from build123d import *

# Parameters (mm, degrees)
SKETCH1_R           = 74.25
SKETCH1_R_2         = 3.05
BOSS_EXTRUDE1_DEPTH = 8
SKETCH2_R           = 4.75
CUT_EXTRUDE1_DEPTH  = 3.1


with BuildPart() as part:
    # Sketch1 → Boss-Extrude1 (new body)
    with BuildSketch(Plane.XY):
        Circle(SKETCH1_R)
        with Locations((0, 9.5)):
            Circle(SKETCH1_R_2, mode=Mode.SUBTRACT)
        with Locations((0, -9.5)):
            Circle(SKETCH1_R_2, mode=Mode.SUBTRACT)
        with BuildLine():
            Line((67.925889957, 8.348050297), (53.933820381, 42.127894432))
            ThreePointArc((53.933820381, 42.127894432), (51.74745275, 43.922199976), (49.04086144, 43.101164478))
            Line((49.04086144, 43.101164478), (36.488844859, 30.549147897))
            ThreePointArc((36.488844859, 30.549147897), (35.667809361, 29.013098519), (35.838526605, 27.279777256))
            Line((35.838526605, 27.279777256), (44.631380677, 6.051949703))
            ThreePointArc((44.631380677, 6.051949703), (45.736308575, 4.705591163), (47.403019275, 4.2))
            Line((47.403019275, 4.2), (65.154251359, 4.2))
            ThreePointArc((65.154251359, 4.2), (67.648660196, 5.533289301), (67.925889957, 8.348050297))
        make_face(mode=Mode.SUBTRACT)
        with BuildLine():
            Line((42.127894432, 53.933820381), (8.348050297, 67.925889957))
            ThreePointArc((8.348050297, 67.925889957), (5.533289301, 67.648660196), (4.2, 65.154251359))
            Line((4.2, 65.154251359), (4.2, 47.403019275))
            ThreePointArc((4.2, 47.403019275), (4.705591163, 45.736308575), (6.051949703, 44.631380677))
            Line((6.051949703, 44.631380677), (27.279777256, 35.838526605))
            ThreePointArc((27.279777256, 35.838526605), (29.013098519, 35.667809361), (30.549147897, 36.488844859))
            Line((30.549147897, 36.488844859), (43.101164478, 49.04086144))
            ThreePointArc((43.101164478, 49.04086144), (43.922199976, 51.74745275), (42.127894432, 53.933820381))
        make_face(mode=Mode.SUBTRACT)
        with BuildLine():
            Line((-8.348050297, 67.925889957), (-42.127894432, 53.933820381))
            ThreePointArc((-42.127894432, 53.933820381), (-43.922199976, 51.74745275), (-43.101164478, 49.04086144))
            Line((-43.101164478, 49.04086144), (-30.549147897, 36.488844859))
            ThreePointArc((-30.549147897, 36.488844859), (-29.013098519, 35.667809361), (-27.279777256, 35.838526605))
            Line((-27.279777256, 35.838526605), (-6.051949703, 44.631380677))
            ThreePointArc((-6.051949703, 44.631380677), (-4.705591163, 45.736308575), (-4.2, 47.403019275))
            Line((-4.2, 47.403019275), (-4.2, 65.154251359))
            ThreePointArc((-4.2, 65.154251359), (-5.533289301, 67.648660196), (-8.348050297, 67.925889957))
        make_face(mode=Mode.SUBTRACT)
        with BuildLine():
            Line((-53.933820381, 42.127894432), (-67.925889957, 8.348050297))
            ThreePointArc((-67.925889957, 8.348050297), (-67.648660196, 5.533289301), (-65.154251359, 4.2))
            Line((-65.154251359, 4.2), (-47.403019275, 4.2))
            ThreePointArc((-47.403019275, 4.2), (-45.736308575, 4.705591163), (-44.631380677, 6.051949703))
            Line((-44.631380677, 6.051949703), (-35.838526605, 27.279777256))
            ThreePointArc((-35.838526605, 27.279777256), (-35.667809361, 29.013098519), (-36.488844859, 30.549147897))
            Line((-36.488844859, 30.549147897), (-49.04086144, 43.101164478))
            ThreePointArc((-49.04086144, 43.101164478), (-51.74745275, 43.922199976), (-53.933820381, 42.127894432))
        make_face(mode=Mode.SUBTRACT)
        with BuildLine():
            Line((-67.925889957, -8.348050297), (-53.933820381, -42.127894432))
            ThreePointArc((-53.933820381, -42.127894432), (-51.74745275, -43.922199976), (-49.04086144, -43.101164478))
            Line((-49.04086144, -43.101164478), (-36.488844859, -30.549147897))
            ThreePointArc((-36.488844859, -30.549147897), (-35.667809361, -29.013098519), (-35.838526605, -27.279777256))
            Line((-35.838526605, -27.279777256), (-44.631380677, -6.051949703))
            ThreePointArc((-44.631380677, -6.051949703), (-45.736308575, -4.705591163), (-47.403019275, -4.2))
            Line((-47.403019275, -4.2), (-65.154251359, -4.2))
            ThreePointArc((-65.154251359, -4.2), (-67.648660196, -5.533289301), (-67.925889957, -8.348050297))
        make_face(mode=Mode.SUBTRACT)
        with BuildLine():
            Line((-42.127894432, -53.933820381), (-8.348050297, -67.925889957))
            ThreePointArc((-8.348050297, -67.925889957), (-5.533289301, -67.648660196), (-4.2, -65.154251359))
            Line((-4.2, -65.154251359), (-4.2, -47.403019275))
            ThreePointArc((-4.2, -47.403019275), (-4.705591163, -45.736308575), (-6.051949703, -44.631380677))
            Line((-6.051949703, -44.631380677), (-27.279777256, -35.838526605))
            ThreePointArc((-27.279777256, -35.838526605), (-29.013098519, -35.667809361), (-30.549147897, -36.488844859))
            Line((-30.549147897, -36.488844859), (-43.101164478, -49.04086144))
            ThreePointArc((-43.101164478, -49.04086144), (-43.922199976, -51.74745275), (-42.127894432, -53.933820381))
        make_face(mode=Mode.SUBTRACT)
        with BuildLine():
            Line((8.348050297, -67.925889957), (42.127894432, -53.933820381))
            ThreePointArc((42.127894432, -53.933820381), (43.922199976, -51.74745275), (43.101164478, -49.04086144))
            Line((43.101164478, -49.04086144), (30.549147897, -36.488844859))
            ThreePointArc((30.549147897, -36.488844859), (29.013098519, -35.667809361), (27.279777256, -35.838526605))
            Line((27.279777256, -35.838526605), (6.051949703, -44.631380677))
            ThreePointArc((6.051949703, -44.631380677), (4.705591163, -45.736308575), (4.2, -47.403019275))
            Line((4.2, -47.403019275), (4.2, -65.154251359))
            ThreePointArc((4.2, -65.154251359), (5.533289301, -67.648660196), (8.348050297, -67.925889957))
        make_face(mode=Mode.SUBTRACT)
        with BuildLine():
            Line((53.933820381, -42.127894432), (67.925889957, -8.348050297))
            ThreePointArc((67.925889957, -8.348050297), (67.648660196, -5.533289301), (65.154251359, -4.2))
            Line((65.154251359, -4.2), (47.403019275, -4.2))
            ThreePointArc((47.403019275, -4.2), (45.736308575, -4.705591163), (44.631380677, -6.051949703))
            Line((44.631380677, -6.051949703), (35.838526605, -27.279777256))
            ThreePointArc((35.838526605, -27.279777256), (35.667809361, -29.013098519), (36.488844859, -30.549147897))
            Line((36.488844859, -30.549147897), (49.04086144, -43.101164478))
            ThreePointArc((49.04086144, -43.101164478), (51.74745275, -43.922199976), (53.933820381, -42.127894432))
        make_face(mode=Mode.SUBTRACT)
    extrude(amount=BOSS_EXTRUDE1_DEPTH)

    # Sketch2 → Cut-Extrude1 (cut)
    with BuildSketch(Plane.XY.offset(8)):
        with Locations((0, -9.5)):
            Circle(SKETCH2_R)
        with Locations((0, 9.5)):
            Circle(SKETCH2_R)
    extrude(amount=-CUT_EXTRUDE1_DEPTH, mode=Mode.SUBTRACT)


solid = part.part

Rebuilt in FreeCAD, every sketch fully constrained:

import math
import FreeCAD as App
import Part
import Sketcher
Q = App.Units.Quantity

doc = App.newDocument("Part")
body = doc.addObject("PartDesign::Body", "Body")

sketch1 = body.newObject("Sketcher::SketchObject", "Sketch")
sketch1.AttachmentSupport = (doc.getObject("XY_Plane"), [""])
sketch1.MapMode = "FlatFace"
sketch1.addGeometry([
    Part.Circle(App.Vector(0, 0, 0), App.Vector(0, 0, 1), 74.25),
    Part.LineSegment(App.Vector(-8.34805, -67.92589, 0), App.Vector(-42.127894, -53.93382, 0)),
    Part.ArcOfCircle(Part.Circle(App.Vector(-40.979844, -51.162182, 0), App.Vector(0, 0, 1), 3), math.radians(135), math.radians(247.5)),
    Part.LineSegment(App.Vector(-43.101164, -49.040861, 0), App.Vector(-30.549148, -36.488845, 0)),
    Part.ArcOfCircle(Part.Circle(App.Vector(-28.427828, -38.610165, 0), App.Vector(0, 0, 1), 3), math.radians(67.5), math.radians(135)),
    Part.LineSegment(App.Vector(-27.279777, -35.838527, 0), App.Vector(-6.05195, -44.631381, 0)),
    Part.ArcOfCircle(Part.Circle(App.Vector(-7.2, -47.403019, 0), App.Vector(0, 0, 1), 3), math.radians(0), math.radians(67.5)),
    Part.LineSegment(App.Vector(-4.2, -47.403019, 0), App.Vector(-4.2, -65.154251, 0)),
    Part.ArcOfCircle(Part.Circle(App.Vector(-7.2, -65.154251, 0), App.Vector(0, 0, 1), 3), math.radians(-112.5), math.radians(0)),
    Part.LineSegment(App.Vector(-53.93382, -42.127894, 0), App.Vector(-67.92589, -8.34805, 0)),
    Part.ArcOfCircle(Part.Circle(App.Vector(-65.154251, -7.2, 0), App.Vector(0, 0, 1), 3), math.radians(90), math.radians(202.5)),
    Part.LineSegment(App.Vector(-65.154251, -4.2, 0), App.Vector(-47.403019, -4.2, 0)),
    Part.ArcOfCircle(Part.Circle(App.Vector(-47.403019, -7.2, 0), App.Vector(0, 0, 1), 3), math.radians(22.5), math.radians(90)),
    Part.LineSegment(App.Vector(-44.631381, -6.05195, 0), App.Vector(-35.838527, -27.279777, 0)),
    Part.ArcOfCircle(Part.Circle(App.Vector(-38.610165, -28.427828, 0), App.Vector(0, 0, 1), 3), math.radians(-45), math.radians(22.5)),
    Part.LineSegment(App.Vector(-36.488845, -30.549148, 0), App.Vector(-49.040861, -43.101164, 0)),
    Part.ArcOfCircle(Part.Circle(App.Vector(-51.162182, -40.979844, 0), App.Vector(0, 0, 1), 3), math.radians(-157.5), math.radians(-45)),
    Part.LineSegment(App.Vector(42.127894, -53.93382, 0), App.Vector(8.34805, -67.92589, 0)),
    Part.ArcOfCircle(Part.Circle(App.Vector(7.2, -65.154251, 0), App.Vector(0, 0, 1), 3), math.radians(180), math.radians(292.5)),
    Part.LineSegment(App.Vector(4.2, -65.154251, 0), App.Vector(4.2, -47.403019, 0)),
    Part.ArcOfCircle(Part.Circle(App.Vector(7.2, -47.403019, 0), App.Vector(0, 0, 1), 3), math.radians(112.5), math.radians(180)),
    Part.LineSegment(App.Vector(6.05195, -44.631381, 0), App.Vector(27.279777, -35.838527, 0)),
    Part.ArcOfCircle(Part.Circle(App.Vector(28.427828, -38.610165, 0), App.Vector(0, 0, 1), 3), math.radians(45), math.radians(112.5)),
    Part.LineSegment(App.Vector(30.549148, -36.488845, 0), App.Vector(43.101164, -49.040861, 0)),
    Part.ArcOfCircle(Part.Circle(App.Vector(40.979844, -51.162182, 0), App.Vector(0, 0, 1), 3), math.radians(-67.5), math.radians(45)),
    Part.Circle(App.Vector(0, -9.5, 0), App.Vector(0, 0, 1), 3.05),
    Part.LineSegment(App.Vector(67.92589, -8.34805, 0), App.Vector(53.93382, -42.127894, 0)),
    Part.ArcOfCircle(Part.Circle(App.Vector(51.162182, -40.979844, 0), App.Vector(0, 0, 1), 3), math.radians(-135), math.radians(-22.5)),
    Part.LineSegment(App.Vector(49.040861, -43.101164, 0), App.Vector(36.488845, -30.549148, 0)),
    Part.ArcOfCircle(Part.Circle(App.Vector(38.610165, -28.427828, 0), App.Vector(0, 0, 1), 3), math.radians(157.5), math.radians(225)),
    Part.LineSegment(App.Vector(35.838527, -27.279777, 0), App.Vector(44.631381, -6.05195, 0)),
    Part.ArcOfCircle(Part.Circle(App.Vector(47.403019, -7.2, 0), App.Vector(0, 0, 1), 3), math.radians(90), math.radians(157.5)),
    Part.LineSegment(App.Vector(47.403019, -4.2, 0), App.Vector(65.154251, -4.2, 0)),
    Part.ArcOfCircle(Part.Circle(App.Vector(65.154251, -7.2, 0), App.Vector(0, 0, 1), 3), math.radians(-22.5), math.radians(90)),
    Part.LineSegment(App.Vector(-67.92589, 8.34805, 0), App.Vector(-53.93382, 42.127894, 0)),
    Part.ArcOfCircle(Part.Circle(App.Vector(-51.162182, 40.979844, 0), App.Vector(0, 0, 1), 3), math.radians(45), math.radians(157.5)),
    Part.LineSegment(App.Vector(-49.040861, 43.101164, 0), App.Vector(-36.488845, 30.549148, 0)),
    Part.ArcOfCircle(Part.Circle(App.Vector(-38.610165, 28.427828, 0), App.Vector(0, 0, 1), 3), math.radians(-22.5), math.radians(45)),
    Part.LineSegment(App.Vector(-35.838527, 27.279777, 0), App.Vector(-44.631381, 6.05195, 0)),
    Part.ArcOfCircle(Part.Circle(App.Vector(-47.403019, 7.2, 0), App.Vector(0, 0, 1), 3), math.radians(-90), math.radians(-22.5)),
    Part.LineSegment(App.Vector(-47.403019, 4.2, 0), App.Vector(-65.154251, 4.2, 0)),
    Part.ArcOfCircle(Part.Circle(App.Vector(-65.154251, 7.2, 0), App.Vector(0, 0, 1), 3), math.radians(157.5), math.radians(270)),
    Part.LineSegment(App.Vector(-42.127894, 53.93382, 0), App.Vector(-8.34805, 67.92589, 0)),
    Part.ArcOfCircle(Part.Circle(App.Vector(-7.2, 65.154251, 0), App.Vector(0, 0, 1), 3), math.radians(0), math.radians(112.5)),
    Part.LineSegment(App.Vector(-4.2, 65.154251, 0), App.Vector(-4.2, 47.403019, 0)),
    Part.ArcOfCircle(Part.Circle(App.Vector(-7.2, 47.403019, 0), App.Vector(0, 0, 1), 3), math.radians(-67.5), math.radians(0)),
    Part.LineSegment(App.Vector(-6.05195, 44.631381, 0), App.Vector(-27.279777, 35.838527, 0)),
    Part.ArcOfCircle(Part.Circle(App.Vector(-28.427828, 38.610165, 0), App.Vector(0, 0, 1), 3), math.radians(-135), math.radians(-67.5)),
    Part.LineSegment(App.Vector(-30.549148, 36.488845, 0), App.Vector(-43.101164, 49.040861, 0)),
    Part.ArcOfCircle(Part.Circle(App.Vector(-40.979844, 51.162182, 0), App.Vector(0, 0, 1), 3), math.radians(112.5), math.radians(225)),
    Part.Circle(App.Vector(0, 9.5, 0), App.Vector(0, 0, 1), 3.05),
    Part.LineSegment(App.Vector(53.93382, 42.127894, 0), App.Vector(67.92589, 8.34805, 0)),
    Part.ArcOfCircle(Part.Circle(App.Vector(65.154251, 7.2, 0), App.Vector(0, 0, 1), 3), math.radians(-90), math.radians(22.5)),
    Part.LineSegment(App.Vector(65.154251, 4.2, 0), App.Vector(47.403019, 4.2, 0)),
    Part.ArcOfCircle(Part.Circle(App.Vector(47.403019, 7.2, 0), App.Vector(0, 0, 1), 3), math.radians(-157.5), math.radians(-90)),
    Part.LineSegment(App.Vector(44.631381, 6.05195, 0), App.Vector(35.838527, 27.279777, 0)),
    Part.ArcOfCircle(Part.Circle(App.Vector(38.610165, 28.427828, 0), App.Vector(0, 0, 1), 3), math.radians(135), math.radians(202.5)),
    Part.LineSegment(App.Vector(36.488845, 30.549148, 0), App.Vector(49.040861, 43.101164, 0)),
    Part.ArcOfCircle(Part.Circle(App.Vector(51.162182, 40.979844, 0), App.Vector(0, 0, 1), 3), math.radians(22.5), math.radians(135)),
    Part.LineSegment(App.Vector(8.34805, 67.92589, 0), App.Vector(42.127894, 53.93382, 0)),
    Part.ArcOfCircle(Part.Circle(App.Vector(40.979844, 51.162182, 0), App.Vector(0, 0, 1), 3), math.radians(-45), math.radians(67.5)),
    Part.LineSegment(App.Vector(43.101164, 49.040861, 0), App.Vector(30.549148, 36.488845, 0)),
    Part.ArcOfCircle(Part.Circle(App.Vector(28.427828, 38.610165, 0), App.Vector(0, 0, 1), 3), math.radians(-112.5), math.radians(-45)),
    Part.LineSegment(App.Vector(27.279777, 35.838527, 0), App.Vector(6.05195, 44.631381, 0)),
    Part.ArcOfCircle(Part.Circle(App.Vector(7.2, 47.403019, 0), App.Vector(0, 0, 1), 3), math.radians(180), math.radians(247.5)),
    Part.LineSegment(App.Vector(4.2, 47.403019, 0), App.Vector(4.2, 65.154251, 0)),
    Part.ArcOfCircle(Part.Circle(App.Vector(7.2, 65.154251, 0), App.Vector(0, 0, 1), 3), math.radians(67.5), math.radians(180)),
], False)
sketch1.addConstraint([
    Sketcher.Constraint("Tangent", 1, 2, 2, 2),
    Sketcher.Constraint("Tangent", 2, 1, 3, 1),
    Sketcher.Constraint("Tangent", 3, 2, 4, 2),
    Sketcher.Constraint("Tangent", 4, 1, 5, 1),
    Sketcher.Constraint("Tangent", 5, 2, 6, 2),
    Sketcher.Constraint("Tangent", 6, 1, 7, 1),
    Sketcher.Constraint("Tangent", 7, 2, 8, 2),
    Sketcher.Constraint("Tangent", 8, 1, 1, 1),
    Sketcher.Constraint("Tangent", 9, 2, 10, 2),
    Sketcher.Constraint("Tangent", 10, 1, 11, 1),
    Sketcher.Constraint("Tangent", 11, 2, 12, 2),
    Sketcher.Constraint("Tangent", 12, 1, 13, 1),
    Sketcher.Constraint("Tangent", 13, 2, 14, 2),
    Sketcher.Constraint("Tangent", 14, 1, 15, 1),
    Sketcher.Constraint("Tangent", 15, 2, 16, 2),
    Sketcher.Constraint("Tangent", 16, 1, 9, 1),
    Sketcher.Constraint("Tangent", 17, 2, 18, 2),
    Sketcher.Constraint("Tangent", 18, 1, 19, 1),
    Sketcher.Constraint("Tangent", 19, 2, 20, 2),
    Sketcher.Constraint("Tangent", 20, 1, 21, 1),
    Sketcher.Constraint("Tangent", 21, 2, 22, 2),
    Sketcher.Constraint("Tangent", 22, 1, 23, 1),
    Sketcher.Constraint("Tangent", 23, 2, 24, 2),
    Sketcher.Constraint("Tangent", 24, 1, 17, 1),
    Sketcher.Constraint("Tangent", 26, 2, 27, 2),
    Sketcher.Constraint("Tangent", 27, 1, 28, 1),
    Sketcher.Constraint("Tangent", 28, 2, 29, 2),
    Sketcher.Constraint("Tangent", 29, 1, 30, 1),
    Sketcher.Constraint("Tangent", 30, 2, 31, 2),
    Sketcher.Constraint("Tangent", 31, 1, 32, 1),
    Sketcher.Constraint("Tangent", 32, 2, 33, 2),
    Sketcher.Constraint("Tangent", 33, 1, 26, 1),
    Sketcher.Constraint("Tangent", 34, 2, 35, 2),
    Sketcher.Constraint("Tangent", 35, 1, 36, 1),
    Sketcher.Constraint("Tangent", 36, 2, 37, 2),
    Sketcher.Constraint("Tangent", 37, 1, 38, 1),
    Sketcher.Constraint("Tangent", 38, 2, 39, 2),
    Sketcher.Constraint("Tangent", 39, 1, 40, 1),
    Sketcher.Constraint("Tangent", 40, 2, 41, 2),
    Sketcher.Constraint("Tangent", 41, 1, 34, 1),
    Sketcher.Constraint("Tangent", 42, 2, 43, 2),
    Sketcher.Constraint("Tangent", 43, 1, 44, 1),
    Sketcher.Constraint("Tangent", 44, 2, 45, 2),
    Sketcher.Constraint("Tangent", 45, 1, 46, 1),
    Sketcher.Constraint("Tangent", 46, 2, 47, 2),
    Sketcher.Constraint("Tangent", 47, 1, 48, 1),
    Sketcher.Constraint("Tangent", 48, 2, 49, 2),
    Sketcher.Constraint("Tangent", 49, 1, 42, 1),
    Sketcher.Constraint("Tangent", 51, 2, 52, 2),
    Sketcher.Constraint("Tangent", 52, 1, 53, 1),
    Sketcher.Constraint("Tangent", 53, 2, 54, 2),
    Sketcher.Constraint("Tangent", 54, 1, 55, 1),
    Sketcher.Constraint("Tangent", 55, 2, 56, 2),
    Sketcher.Constraint("Tangent", 56, 1, 57, 1),
    Sketcher.Constraint("Tangent", 57, 2, 58, 2),
    Sketcher.Constraint("Tangent", 58, 1, 51, 1),
    Sketcher.Constraint("Tangent", 59, 2, 60, 2),
    Sketcher.Constraint("Tangent", 60, 1, 61, 1),
    Sketcher.Constraint("Tangent", 61, 2, 62, 2),
    Sketcher.Constraint("Tangent", 62, 1, 63, 1),
    Sketcher.Constraint("Tangent", 63, 2, 64, 2),
    Sketcher.Constraint("Tangent", 64, 1, 65, 1),
    Sketcher.Constraint("Tangent", 65, 2, 66, 2),
    Sketcher.Constraint("Tangent", 66, 1, 59, 1),
    Sketcher.Constraint("Vertical", 7),
    Sketcher.Constraint("Horizontal", 11),
    Sketcher.Constraint("Vertical", 19),
    Sketcher.Constraint("Horizontal", 32),
    Sketcher.Constraint("Horizontal", 40),
    Sketcher.Constraint("Vertical", 44),
    Sketcher.Constraint("Horizontal", 53),
    Sketcher.Constraint("Vertical", 65),
    Sketcher.Constraint("Coincident", 0, 3, -1, 1),
    Sketcher.Constraint("Equal", 2, 4),
    Sketcher.Constraint("Equal", 4, 6),
    Sketcher.Constraint("Equal", 6, 8),
    Sketcher.Constraint("Equal", 8, 10),
    Sketcher.Constraint("Equal", 10, 12),
    Sketcher.Constraint("Equal", 12, 14),
    Sketcher.Constraint("Equal", 14, 16),
    Sketcher.Constraint("Equal", 16, 18),
    Sketcher.Constraint("Equal", 18, 20),
    Sketcher.Constraint("Equal", 20, 22),
    Sketcher.Constraint("Equal", 22, 24),
    Sketcher.Constraint("Equal", 24, 27),
    Sketcher.Constraint("Equal", 27, 29),
    Sketcher.Constraint("Equal", 29, 31),
    Sketcher.Constraint("Equal", 31, 33),
    Sketcher.Constraint("Equal", 33, 35),
    Sketcher.Constraint("Equal", 35, 37),
    Sketcher.Constraint("Equal", 37, 39),
    Sketcher.Constraint("Equal", 39, 41),
    Sketcher.Constraint("Equal", 41, 43),
    Sketcher.Constraint("Equal", 43, 45),
    Sketcher.Constraint("Equal", 45, 47),
    Sketcher.Constraint("Equal", 47, 49),
    Sketcher.Constraint("Equal", 25, 50),
    Sketcher.Constraint("Equal", 49, 52),
    Sketcher.Constraint("Equal", 52, 54),
    Sketcher.Constraint("Equal", 54, 56),
    Sketcher.Constraint("Equal", 56, 58),
    Sketcher.Constraint("Equal", 58, 60),
    Sketcher.Constraint("Equal", 60, 62),
    Sketcher.Constraint("Equal", 62, 64),
    Sketcher.Constraint("Equal", 64, 66),
    Sketcher.Constraint("Symmetric", 27, 3, 35, 3, -1, 1),
    Sketcher.Constraint("Symmetric", 29, 3, 37, 3, -1, 1),
    Sketcher.Constraint("Symmetric", 31, 3, 39, 3, -1, 1),
    Sketcher.Constraint("Symmetric", 18, 3, 43, 3, -1, 1),
    Sketcher.Constraint("Symmetric", 22, 3, 47, 3, -1, 1),
    Sketcher.Constraint("Symmetric", 24, 3, 49, 3, -1, 1),
    Sketcher.Constraint("Symmetric", 25, 3, 50, 3, -1, 1),
    Sketcher.Constraint("Symmetric", 10, 3, 52, 3, -1, 1),
    Sketcher.Constraint("Symmetric", 14, 3, 56, 3, -1, 1),
    Sketcher.Constraint("Symmetric", 16, 3, 58, 3, -1, 1),
    Sketcher.Constraint("Symmetric", 2, 3, 60, 3, -1, 1),
    Sketcher.Constraint("Symmetric", 4, 3, 62, 3, -1, 1),
    Sketcher.Constraint("Symmetric", 6, 3, 64, 3, -1, 1),
    Sketcher.Constraint("Symmetric", 8, 3, 18, 3, -2),
    Sketcher.Constraint("Symmetric", 4, 3, 22, 3, -2),
    Sketcher.Constraint("Symmetric", 2, 3, 24, 3, -2),
    Sketcher.Constraint("Symmetric", 16, 3, 27, 3, -2),
    Sketcher.Constraint("Symmetric", 14, 3, 29, 3, -2),
    Sketcher.Constraint("Symmetric", 12, 3, 31, 3, -2),
    Sketcher.Constraint("PointOnObject", 25, 3, -2),
    Sketcher.Constraint("Parallel", 1, 5),
    Sketcher.Constraint("Parallel", 9, 13),
    Sketcher.Constraint("Parallel", 3, 15),
    Sketcher.Constraint("Perpendicular", 13, 17),
    Sketcher.Constraint("Parallel", 17, 21),
    Sketcher.Constraint("Perpendicular", 15, 23),
    Sketcher.Constraint("Perpendicular", 5, 26),
    Sketcher.Constraint("Parallel", 30, 34),
    Sketcher.Constraint("Parallel", 42, 46),
    Sketcher.Constraint("Parallel", 51, 55),
    Sketcher.Constraint("Perpendicular", 38, 59),
    Sketcher.Constraint("Equal", 53, 7),
    Sketcher.Constraint("Equal", 1, 9),
    Sketcher.Constraint("Radius", 2, Q("3 mm")),
    Sketcher.Constraint("Diameter", 0, Q("148.5 mm")),
    Sketcher.Constraint("Diameter", 25, Q("6.1 mm")),
    Sketcher.Constraint("Angle", 1, Q("157.5 deg")),
    Sketcher.Constraint("DistanceX", 6, 3, -1, 1, Q("7.2 mm")),
    Sketcher.Constraint("DistanceY", 10, 3, -1, 1, Q("7.2 mm")),
    Sketcher.Constraint("DistanceY", 25, 3, -1, 1, Q("9.5 mm")),
    Sketcher.Constraint("Distance", 1, Q("36.56304 mm")),
    Sketcher.Constraint("DistanceX", 11, 1, 11, 2, Q("17.751232 mm")),
    Sketcher.Constraint("DistanceY", 2, 3, -1, 1, Q("51.162182 mm")),
    Sketcher.Constraint("DistanceX", 10, 3, -1, 1, Q("65.154251 mm")),
])
pad1 = body.newObject("PartDesign::Pad", "Pad")
pad1.Profile = sketch1
pad1.Length = 8

sketch2 = body.newObject("Sketcher::SketchObject", "Sketch001")
sketch2.AttachmentSupport = (doc.getObject("XY_Plane"), [""])
sketch2.MapMode = "FlatFace"
sketch2.AttachmentOffset = App.Placement(App.Vector(0, 0, 8), App.Rotation())
sketch2.addGeometry([
    Part.Circle(App.Vector(0, -9.5, 0), App.Vector(0, 0, 1), 4.75),
    Part.Circle(App.Vector(0, 9.5, 0), App.Vector(0, 0, 1), 4.75),
], False)
sketch2.addConstraint([
    Sketcher.Constraint("Equal", 0, 1),
    Sketcher.Constraint("Symmetric", 0, 3, 1, 3, -1, 1),
    Sketcher.Constraint("PointOnObject", 0, 3, -2),
    Sketcher.Constraint("Diameter", 0, Q("9.5 mm")),
    Sketcher.Constraint("DistanceY", 0, 3, 1, 3, Q("19 mm")),
])
pocket1 = body.newObject("PartDesign::Pocket", "Pocket")
pocket1.Profile = sketch2
pocket1.Length = 3.1

doc.recompute()
